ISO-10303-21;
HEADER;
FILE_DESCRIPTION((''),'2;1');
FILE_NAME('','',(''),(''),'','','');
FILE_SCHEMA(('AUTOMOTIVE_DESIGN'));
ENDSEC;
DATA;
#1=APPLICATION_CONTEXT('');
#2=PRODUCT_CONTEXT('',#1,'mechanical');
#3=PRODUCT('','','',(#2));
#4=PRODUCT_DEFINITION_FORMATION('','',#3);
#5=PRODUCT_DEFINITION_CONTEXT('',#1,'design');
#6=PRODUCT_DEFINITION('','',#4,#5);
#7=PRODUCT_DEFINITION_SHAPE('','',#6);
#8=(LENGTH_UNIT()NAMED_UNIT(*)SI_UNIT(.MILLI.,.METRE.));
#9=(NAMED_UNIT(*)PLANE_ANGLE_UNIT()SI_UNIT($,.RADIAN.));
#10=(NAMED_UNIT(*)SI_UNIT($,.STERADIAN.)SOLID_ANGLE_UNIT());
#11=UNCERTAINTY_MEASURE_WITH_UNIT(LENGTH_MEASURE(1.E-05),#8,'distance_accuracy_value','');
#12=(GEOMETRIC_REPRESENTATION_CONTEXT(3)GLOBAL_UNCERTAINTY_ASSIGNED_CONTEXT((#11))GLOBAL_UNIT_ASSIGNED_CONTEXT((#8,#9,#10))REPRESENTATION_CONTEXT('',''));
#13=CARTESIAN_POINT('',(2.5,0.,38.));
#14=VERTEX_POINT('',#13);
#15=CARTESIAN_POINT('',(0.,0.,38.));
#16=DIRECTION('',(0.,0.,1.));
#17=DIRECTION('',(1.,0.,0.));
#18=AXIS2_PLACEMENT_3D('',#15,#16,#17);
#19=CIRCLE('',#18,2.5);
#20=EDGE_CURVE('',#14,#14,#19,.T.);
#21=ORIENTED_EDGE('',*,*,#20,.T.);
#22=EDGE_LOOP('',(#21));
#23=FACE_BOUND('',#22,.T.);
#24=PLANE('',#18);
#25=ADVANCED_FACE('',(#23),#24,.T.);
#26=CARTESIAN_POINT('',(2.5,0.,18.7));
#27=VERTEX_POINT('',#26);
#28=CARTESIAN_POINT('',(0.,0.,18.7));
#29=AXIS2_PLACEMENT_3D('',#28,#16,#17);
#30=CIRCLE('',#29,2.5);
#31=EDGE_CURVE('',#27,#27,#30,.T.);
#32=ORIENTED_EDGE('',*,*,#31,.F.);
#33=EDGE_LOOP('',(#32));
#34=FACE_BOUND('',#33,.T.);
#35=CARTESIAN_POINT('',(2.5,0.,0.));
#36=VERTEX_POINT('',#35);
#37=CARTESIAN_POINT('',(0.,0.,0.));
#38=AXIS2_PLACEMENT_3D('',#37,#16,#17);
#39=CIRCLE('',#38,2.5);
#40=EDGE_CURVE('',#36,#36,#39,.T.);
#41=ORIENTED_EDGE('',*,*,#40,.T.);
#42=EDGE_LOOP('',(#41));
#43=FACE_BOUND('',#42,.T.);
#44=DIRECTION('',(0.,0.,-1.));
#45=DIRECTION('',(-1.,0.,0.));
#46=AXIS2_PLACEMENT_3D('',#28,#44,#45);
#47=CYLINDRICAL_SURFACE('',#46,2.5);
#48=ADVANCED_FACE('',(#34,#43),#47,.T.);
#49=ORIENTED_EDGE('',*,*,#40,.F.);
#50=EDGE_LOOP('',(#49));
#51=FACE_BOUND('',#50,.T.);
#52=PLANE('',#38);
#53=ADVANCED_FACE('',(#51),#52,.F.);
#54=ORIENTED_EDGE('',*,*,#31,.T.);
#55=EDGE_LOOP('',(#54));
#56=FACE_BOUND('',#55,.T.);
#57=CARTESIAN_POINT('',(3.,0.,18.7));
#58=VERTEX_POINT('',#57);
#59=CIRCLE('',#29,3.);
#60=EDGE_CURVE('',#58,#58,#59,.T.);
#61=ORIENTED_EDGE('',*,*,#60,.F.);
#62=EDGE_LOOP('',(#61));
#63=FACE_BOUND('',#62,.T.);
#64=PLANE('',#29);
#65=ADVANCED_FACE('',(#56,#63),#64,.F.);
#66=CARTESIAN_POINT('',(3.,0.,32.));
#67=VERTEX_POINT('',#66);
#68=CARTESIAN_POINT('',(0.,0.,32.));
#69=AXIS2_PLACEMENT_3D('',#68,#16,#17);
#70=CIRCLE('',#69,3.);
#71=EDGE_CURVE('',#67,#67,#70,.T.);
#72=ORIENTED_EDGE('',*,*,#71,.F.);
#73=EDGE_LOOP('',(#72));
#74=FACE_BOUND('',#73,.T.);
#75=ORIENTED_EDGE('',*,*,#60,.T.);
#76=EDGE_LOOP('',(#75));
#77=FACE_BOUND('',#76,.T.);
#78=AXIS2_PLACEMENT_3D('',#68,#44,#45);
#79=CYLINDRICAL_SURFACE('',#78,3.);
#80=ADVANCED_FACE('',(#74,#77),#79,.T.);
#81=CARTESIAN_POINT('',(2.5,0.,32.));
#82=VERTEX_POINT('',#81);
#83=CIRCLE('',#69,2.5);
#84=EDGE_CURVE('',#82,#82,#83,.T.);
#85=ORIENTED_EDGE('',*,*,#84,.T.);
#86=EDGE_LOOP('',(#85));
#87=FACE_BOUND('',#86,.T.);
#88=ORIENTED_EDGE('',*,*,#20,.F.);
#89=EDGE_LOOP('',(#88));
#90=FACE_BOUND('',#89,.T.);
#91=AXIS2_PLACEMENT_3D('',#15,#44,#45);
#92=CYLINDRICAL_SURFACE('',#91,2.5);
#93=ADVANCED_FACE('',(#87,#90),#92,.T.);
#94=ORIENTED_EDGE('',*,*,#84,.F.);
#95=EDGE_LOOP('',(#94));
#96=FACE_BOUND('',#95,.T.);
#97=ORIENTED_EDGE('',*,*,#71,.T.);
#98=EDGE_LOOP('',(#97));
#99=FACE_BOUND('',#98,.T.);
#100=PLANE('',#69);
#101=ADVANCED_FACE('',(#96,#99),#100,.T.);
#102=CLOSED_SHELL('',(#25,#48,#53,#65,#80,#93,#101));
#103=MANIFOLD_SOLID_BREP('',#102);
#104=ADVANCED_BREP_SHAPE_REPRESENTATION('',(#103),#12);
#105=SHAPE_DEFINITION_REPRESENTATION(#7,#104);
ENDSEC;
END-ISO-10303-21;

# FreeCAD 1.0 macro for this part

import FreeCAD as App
import Part
import Sketcher
Q = App.Units.Quantity

doc = App.newDocument("Part")
body = doc.addObject("PartDesign::Body", "Body")

sketch1 = body.newObject("Sketcher::SketchObject", "Sketch")
sketch1.AttachmentSupport = (doc.getObject("XY_Plane"), [""])
sketch1.MapMode = "FlatFace"
sketch1.addGeometry(Part.Circle(App.Vector(0, 0, 0), App.Vector(0, 0, 1), 2.5), False)
sketch1.addConstraint(Sketcher.Constraint("Coincident", 0, 3, -1, 1))
sketch1.addConstraint(Sketcher.Constraint("Diameter", 0, Q("5 mm")))
pad1 = body.newObject("PartDesign::Pad", "Pad")
pad1.Profile = sketch1
pad1.Length = 18.7

sketch2 = body.newObject("Sketcher::SketchObject", "Sketch001")
sketch2.AttachmentSupport = (doc.getObject("XY_Plane"), [""])
sketch2.MapMode = "FlatFace"
sketch2.AttachmentOffset = App.Placement(App.Vector(0, 0, 18.7), App.Rotation())
sketch2.addGeometry(Part.Circle(App.Vector(0, 0, 0), App.Vector(0, 0, 1), 3), False)
sketch2.addConstraint(Sketcher.Constraint("Coincident", 0, 3, -1, 1))
sketch2.addConstraint(Sketcher.Constraint("Diameter", 0, Q("6 mm")))
pad2 = body.newObject("PartDesign::Pad", "Pad001")
pad2.Profile = sketch2
pad2.Length = 13.3

sketch3 = body.newObject("Sketcher::SketchObject", "Sketch002")
sketch3.AttachmentSupport = (doc.getObject("XY_Plane"), [""])
sketch3.MapMode = "FlatFace"
sketch3.AttachmentOffset = App.Placement(App.Vector(0, 0, 32), App.Rotation())
sketch3.addGeometry(Part.Circle(App.Vector(0, 0, 0), App.Vector(0, 0, 1), 2.5), False)
sketch3.addConstraint(Sketcher.Constraint("Coincident", 0, 3, -1, 1))
sketch3.addConstraint(Sketcher.Constraint("Diameter", 0, Q("5 mm")))
pad3 = body.newObject("PartDesign::Pad", "Pad002")
pad3.Profile = sketch3
pad3.Length = 6

doc.recompute()
